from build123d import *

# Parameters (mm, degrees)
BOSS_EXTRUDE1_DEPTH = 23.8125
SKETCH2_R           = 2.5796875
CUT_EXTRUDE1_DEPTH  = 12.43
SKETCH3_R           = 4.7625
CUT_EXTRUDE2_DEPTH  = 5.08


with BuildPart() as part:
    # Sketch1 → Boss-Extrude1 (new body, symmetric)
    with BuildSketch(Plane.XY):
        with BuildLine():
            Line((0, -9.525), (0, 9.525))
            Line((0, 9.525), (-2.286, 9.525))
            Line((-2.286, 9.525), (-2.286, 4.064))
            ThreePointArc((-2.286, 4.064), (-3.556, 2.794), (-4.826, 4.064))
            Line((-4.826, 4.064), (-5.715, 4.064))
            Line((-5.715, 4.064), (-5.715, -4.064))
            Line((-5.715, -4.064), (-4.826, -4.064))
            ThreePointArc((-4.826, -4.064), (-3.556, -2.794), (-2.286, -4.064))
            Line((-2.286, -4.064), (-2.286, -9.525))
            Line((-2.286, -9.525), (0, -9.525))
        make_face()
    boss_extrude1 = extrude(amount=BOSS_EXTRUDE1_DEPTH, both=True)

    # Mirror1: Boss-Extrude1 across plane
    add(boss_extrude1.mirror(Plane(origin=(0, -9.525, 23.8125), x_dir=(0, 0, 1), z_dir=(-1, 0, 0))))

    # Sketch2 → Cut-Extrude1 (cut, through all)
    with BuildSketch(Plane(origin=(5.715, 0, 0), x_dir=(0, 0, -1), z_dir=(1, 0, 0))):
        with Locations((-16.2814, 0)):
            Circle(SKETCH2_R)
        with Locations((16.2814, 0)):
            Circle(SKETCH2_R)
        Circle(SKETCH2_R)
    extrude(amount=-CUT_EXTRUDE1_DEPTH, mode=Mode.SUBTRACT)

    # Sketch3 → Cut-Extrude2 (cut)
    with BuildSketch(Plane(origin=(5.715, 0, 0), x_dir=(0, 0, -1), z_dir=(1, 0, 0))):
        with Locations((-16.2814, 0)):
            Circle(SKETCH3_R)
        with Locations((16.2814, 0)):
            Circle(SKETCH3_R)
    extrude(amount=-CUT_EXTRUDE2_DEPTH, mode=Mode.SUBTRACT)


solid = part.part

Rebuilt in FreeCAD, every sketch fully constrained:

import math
import FreeCAD as App
import Part
import Sketcher

V = App.Vector
Q = App.Units.Quantity

doc = App.newDocument("Part")
params = doc.addObject("Spreadsheet::Sheet", "Params")
for row, (alias, value) in enumerate([
    ("sketch1_radius", "0.05 in"),
    ("sketch1_width", "0.09 in"),
    ("sketch1_height", "0.75 in"),
    ("sketch1_height2", "0.32 in"),
    ("sketch1_width2", "0.035 in"),
    ("pad1_length", "1.875 in"),
    ("sketch2_diameter", "0.203125 in"),
    ("sketch3_diameter", "0.375 in"),
    ("pocket2_length", "0.2 in"),
], start=1):
    params.set(f"A{row}", alias)
    params.set(f"B{row}", "=" + value)
    params.setAlias(f"B{row}", alias)

body = doc.addObject("PartDesign::Body", "Body")

sketch1 = body.newObject("Sketcher::SketchObject", "Sketch")
sketch1.AttachmentSupport = (doc.getObject("XY_Plane"), [""])
sketch1.MapMode = "FlatFace"
sketch1.addGeometry([
    Part.LineSegment(V(0, -9.5, 0), V(0, 9.5, 0)),
    Part.LineSegment(V(0, 9.5, 0), V(-2.3, 9.5, 0)),
    Part.LineSegment(V(-2.3, 9.5, 0), V(-2.3, 4.1, 0)),
    Part.ArcOfCircle(Part.Circle(V(-3.6, 4.1, 0), V(0, 0, 1), 1.3), math.radians(180), math.radians(360)),
    Part.LineSegment(V(-4.8, 4.1, 0), V(-5.7, 4.1, 0)),
    Part.LineSegment(V(-5.7, 4.1, 0), V(-5.7, -4.1, 0)),
    Part.LineSegment(V(-5.7, -4.1, 0), V(-4.8, -4.1, 0)),
    Part.ArcOfCircle(Part.Circle(V(-3.6, -4.1, 0), V(0, 0, 1), 1.3), math.radians(0), math.radians(180)),
    Part.LineSegment(V(-2.3, -4.1, 0), V(-2.3, -9.5, 0)),
    Part.LineSegment(V(-2.3, -9.5, 0), V(0, -9.5, 0)),
], False)
sketch1.addConstraint([
    Sketcher.Constraint("Coincident", 0, 2, 1, 1),
    Sketcher.Constraint("Coincident", 1, 2, 2, 1),
    Sketcher.Constraint("Tangent", 2, 2, 3, 2),
    Sketcher.Constraint("Coincident", 3, 1, 4, 1),
    Sketcher.Constraint("Coincident", 4, 2, 5, 1),
    Sketcher.Constraint("Coincident", 5, 2, 6, 1),
    Sketcher.Constraint("Coincident", 6, 2, 7, 2),
    Sketcher.Constraint("Tangent", 7, 1, 8, 1),
    Sketcher.Constraint("Coincident", 8, 2, 9, 1),
    Sketcher.Constraint("Coincident", 9, 2, 0, 1),
    Sketcher.Constraint("Vertical", 0),
    Sketcher.Constraint("Horizontal", 1),
    Sketcher.Constraint("Vertical", 2),
    Sketcher.Constraint("Horizontal", 4),
    Sketcher.Constraint("Vertical", 5),
    Sketcher.Constraint("Horizontal", 6),
    Sketcher.Constraint("Vertical", 8),
    Sketcher.Constraint("Horizontal", 9),
    Sketcher.Constraint("Equal", 3, 7),
    Sketcher.Constraint("Symmetric", 0, 2, 9, 2, -1, 1),
    Sketcher.Constraint("Symmetric", 3, 3, 7, 3, -1),
    Sketcher.Constraint("Horizontal", 2, 2, 3, 1),
    Sketcher.Constraint("Horizontal", 7, 3, 5, 2),
    Sketcher.Constraint("Radius", 3, Q("0.05 in")),
    Sketcher.Constraint("DistanceX", 1, 2, 1, 1, Q("0.09 in")),
    Sketcher.Constraint("DistanceY", 0, 1, 0, 2, Q("0.75 in")),
    Sketcher.Constraint("DistanceY", 5, 2, 5, 1, Q("0.32 in")),
    Sketcher.Constraint("DistanceX", 4, 2, 4, 1, Q("0.035 in")),
])
sketch1.setExpression("Constraints[23]", "Params.sketch1_radius")
sketch1.setExpression("Constraints[24]", "Params.sketch1_width")
sketch1.setExpression("Constraints[25]", "Params.sketch1_height")
sketch1.setExpression("Constraints[26]", "Params.sketch1_height2")
sketch1.setExpression("Constraints[27]", "Params.sketch1_width2")
pad1 = body.newObject("PartDesign::Pad", "Pad")
pad1.Profile = sketch1
pad1.setExpression("Length", "Params.pad1_length")
pad1.Midplane = True
doc.recompute()

mirrored = body.newObject("PartDesign::Mirrored", "Mirrored")
mirrored.Originals = [pad1]
mirrored.MirrorPlane = (doc.getObject("YZ_Plane"), [""])
body.Tip = mirrored

sketch2 = body.newObject("Sketcher::SketchObject", "Sketch001")
sketch2.AttachmentSupport = (doc.getObject("YZ_Plane"), [""])
sketch2.MapMode = "FlatFace"
sketch2.AttachmentOffset = App.Placement(V(0, 0, 0.225 * 25.4), App.Rotation())
sketch2.addGeometry([
    Part.Circle(V(0, 16.3, 0), V(0, 0, 1), 2.6),
    Part.Circle(V(0, -16.3, 0), V(0, 0, 1), 2.6),
    Part.Circle(V(0, 0, 0), V(0, 0, 1), 2.6),
], False)
sketch2.addConstraint([
    Sketcher.Constraint("Coincident", 2, 3, -1, 1),
    Sketcher.Constraint("Equal", 0, 1),
    Sketcher.Constraint("Equal", 1, 2),
    Sketcher.Constraint("Symmetric", 0, 3, 1, 3, -1, 1),
    Sketcher.Constraint("PointOnObject", 0, 3, -2),
    Sketcher.Constraint("Diameter", 0, Q("0.203125 in")),
    Sketcher.Constraint("DistanceY", -1, 1, 0, 3, Q("0.641 in")),
])
sketch2.setExpression("Constraints[5]", "Params.sketch2_diameter")
pocket1 = body.newObject("PartDesign::Pocket", "Pocket")
pocket1.Profile = sketch2
pocket1.Type = "ThroughAll"

sketch3 = body.newObject("Sketcher::SketchObject", "Sketch002")
sketch3.AttachmentSupport = (doc.getObject("YZ_Plane"), [""])
sketch3.MapMode = "FlatFace"
sketch3.AttachmentOffset = App.Placement(V(0, 0, 0.225 * 25.4), App.Rotation())
sketch3.addGeometry([
    Part.Circle(V(0, 16.3, 0), V(0, 0, 1), 4.8),
    Part.Circle(V(0, -16.3, 0), V(0, 0, 1), 4.8),
], False)
sketch3.addConstraint([
    Sketcher.Constraint("Equal", 0, 1),
    Sketcher.Constraint("Symmetric", 0, 3, 1, 3, -1, 1),
    Sketcher.Constraint("PointOnObject", 0, 3, -2),
    Sketcher.Constraint("Diameter", 0, Q("0.375 in")),
    Sketcher.Constraint("DistanceY", -1, 1, 0, 3, Q("0.641 in")),
])
sketch3.setExpression("Constraints[3]", "Params.sketch3_diameter")
pocket2 = body.newObject("PartDesign::Pocket", "Pocket001")
pocket2.Profile = sketch3
pocket2.setExpression("Length", "Params.pocket2_length")

doc.recompute()
